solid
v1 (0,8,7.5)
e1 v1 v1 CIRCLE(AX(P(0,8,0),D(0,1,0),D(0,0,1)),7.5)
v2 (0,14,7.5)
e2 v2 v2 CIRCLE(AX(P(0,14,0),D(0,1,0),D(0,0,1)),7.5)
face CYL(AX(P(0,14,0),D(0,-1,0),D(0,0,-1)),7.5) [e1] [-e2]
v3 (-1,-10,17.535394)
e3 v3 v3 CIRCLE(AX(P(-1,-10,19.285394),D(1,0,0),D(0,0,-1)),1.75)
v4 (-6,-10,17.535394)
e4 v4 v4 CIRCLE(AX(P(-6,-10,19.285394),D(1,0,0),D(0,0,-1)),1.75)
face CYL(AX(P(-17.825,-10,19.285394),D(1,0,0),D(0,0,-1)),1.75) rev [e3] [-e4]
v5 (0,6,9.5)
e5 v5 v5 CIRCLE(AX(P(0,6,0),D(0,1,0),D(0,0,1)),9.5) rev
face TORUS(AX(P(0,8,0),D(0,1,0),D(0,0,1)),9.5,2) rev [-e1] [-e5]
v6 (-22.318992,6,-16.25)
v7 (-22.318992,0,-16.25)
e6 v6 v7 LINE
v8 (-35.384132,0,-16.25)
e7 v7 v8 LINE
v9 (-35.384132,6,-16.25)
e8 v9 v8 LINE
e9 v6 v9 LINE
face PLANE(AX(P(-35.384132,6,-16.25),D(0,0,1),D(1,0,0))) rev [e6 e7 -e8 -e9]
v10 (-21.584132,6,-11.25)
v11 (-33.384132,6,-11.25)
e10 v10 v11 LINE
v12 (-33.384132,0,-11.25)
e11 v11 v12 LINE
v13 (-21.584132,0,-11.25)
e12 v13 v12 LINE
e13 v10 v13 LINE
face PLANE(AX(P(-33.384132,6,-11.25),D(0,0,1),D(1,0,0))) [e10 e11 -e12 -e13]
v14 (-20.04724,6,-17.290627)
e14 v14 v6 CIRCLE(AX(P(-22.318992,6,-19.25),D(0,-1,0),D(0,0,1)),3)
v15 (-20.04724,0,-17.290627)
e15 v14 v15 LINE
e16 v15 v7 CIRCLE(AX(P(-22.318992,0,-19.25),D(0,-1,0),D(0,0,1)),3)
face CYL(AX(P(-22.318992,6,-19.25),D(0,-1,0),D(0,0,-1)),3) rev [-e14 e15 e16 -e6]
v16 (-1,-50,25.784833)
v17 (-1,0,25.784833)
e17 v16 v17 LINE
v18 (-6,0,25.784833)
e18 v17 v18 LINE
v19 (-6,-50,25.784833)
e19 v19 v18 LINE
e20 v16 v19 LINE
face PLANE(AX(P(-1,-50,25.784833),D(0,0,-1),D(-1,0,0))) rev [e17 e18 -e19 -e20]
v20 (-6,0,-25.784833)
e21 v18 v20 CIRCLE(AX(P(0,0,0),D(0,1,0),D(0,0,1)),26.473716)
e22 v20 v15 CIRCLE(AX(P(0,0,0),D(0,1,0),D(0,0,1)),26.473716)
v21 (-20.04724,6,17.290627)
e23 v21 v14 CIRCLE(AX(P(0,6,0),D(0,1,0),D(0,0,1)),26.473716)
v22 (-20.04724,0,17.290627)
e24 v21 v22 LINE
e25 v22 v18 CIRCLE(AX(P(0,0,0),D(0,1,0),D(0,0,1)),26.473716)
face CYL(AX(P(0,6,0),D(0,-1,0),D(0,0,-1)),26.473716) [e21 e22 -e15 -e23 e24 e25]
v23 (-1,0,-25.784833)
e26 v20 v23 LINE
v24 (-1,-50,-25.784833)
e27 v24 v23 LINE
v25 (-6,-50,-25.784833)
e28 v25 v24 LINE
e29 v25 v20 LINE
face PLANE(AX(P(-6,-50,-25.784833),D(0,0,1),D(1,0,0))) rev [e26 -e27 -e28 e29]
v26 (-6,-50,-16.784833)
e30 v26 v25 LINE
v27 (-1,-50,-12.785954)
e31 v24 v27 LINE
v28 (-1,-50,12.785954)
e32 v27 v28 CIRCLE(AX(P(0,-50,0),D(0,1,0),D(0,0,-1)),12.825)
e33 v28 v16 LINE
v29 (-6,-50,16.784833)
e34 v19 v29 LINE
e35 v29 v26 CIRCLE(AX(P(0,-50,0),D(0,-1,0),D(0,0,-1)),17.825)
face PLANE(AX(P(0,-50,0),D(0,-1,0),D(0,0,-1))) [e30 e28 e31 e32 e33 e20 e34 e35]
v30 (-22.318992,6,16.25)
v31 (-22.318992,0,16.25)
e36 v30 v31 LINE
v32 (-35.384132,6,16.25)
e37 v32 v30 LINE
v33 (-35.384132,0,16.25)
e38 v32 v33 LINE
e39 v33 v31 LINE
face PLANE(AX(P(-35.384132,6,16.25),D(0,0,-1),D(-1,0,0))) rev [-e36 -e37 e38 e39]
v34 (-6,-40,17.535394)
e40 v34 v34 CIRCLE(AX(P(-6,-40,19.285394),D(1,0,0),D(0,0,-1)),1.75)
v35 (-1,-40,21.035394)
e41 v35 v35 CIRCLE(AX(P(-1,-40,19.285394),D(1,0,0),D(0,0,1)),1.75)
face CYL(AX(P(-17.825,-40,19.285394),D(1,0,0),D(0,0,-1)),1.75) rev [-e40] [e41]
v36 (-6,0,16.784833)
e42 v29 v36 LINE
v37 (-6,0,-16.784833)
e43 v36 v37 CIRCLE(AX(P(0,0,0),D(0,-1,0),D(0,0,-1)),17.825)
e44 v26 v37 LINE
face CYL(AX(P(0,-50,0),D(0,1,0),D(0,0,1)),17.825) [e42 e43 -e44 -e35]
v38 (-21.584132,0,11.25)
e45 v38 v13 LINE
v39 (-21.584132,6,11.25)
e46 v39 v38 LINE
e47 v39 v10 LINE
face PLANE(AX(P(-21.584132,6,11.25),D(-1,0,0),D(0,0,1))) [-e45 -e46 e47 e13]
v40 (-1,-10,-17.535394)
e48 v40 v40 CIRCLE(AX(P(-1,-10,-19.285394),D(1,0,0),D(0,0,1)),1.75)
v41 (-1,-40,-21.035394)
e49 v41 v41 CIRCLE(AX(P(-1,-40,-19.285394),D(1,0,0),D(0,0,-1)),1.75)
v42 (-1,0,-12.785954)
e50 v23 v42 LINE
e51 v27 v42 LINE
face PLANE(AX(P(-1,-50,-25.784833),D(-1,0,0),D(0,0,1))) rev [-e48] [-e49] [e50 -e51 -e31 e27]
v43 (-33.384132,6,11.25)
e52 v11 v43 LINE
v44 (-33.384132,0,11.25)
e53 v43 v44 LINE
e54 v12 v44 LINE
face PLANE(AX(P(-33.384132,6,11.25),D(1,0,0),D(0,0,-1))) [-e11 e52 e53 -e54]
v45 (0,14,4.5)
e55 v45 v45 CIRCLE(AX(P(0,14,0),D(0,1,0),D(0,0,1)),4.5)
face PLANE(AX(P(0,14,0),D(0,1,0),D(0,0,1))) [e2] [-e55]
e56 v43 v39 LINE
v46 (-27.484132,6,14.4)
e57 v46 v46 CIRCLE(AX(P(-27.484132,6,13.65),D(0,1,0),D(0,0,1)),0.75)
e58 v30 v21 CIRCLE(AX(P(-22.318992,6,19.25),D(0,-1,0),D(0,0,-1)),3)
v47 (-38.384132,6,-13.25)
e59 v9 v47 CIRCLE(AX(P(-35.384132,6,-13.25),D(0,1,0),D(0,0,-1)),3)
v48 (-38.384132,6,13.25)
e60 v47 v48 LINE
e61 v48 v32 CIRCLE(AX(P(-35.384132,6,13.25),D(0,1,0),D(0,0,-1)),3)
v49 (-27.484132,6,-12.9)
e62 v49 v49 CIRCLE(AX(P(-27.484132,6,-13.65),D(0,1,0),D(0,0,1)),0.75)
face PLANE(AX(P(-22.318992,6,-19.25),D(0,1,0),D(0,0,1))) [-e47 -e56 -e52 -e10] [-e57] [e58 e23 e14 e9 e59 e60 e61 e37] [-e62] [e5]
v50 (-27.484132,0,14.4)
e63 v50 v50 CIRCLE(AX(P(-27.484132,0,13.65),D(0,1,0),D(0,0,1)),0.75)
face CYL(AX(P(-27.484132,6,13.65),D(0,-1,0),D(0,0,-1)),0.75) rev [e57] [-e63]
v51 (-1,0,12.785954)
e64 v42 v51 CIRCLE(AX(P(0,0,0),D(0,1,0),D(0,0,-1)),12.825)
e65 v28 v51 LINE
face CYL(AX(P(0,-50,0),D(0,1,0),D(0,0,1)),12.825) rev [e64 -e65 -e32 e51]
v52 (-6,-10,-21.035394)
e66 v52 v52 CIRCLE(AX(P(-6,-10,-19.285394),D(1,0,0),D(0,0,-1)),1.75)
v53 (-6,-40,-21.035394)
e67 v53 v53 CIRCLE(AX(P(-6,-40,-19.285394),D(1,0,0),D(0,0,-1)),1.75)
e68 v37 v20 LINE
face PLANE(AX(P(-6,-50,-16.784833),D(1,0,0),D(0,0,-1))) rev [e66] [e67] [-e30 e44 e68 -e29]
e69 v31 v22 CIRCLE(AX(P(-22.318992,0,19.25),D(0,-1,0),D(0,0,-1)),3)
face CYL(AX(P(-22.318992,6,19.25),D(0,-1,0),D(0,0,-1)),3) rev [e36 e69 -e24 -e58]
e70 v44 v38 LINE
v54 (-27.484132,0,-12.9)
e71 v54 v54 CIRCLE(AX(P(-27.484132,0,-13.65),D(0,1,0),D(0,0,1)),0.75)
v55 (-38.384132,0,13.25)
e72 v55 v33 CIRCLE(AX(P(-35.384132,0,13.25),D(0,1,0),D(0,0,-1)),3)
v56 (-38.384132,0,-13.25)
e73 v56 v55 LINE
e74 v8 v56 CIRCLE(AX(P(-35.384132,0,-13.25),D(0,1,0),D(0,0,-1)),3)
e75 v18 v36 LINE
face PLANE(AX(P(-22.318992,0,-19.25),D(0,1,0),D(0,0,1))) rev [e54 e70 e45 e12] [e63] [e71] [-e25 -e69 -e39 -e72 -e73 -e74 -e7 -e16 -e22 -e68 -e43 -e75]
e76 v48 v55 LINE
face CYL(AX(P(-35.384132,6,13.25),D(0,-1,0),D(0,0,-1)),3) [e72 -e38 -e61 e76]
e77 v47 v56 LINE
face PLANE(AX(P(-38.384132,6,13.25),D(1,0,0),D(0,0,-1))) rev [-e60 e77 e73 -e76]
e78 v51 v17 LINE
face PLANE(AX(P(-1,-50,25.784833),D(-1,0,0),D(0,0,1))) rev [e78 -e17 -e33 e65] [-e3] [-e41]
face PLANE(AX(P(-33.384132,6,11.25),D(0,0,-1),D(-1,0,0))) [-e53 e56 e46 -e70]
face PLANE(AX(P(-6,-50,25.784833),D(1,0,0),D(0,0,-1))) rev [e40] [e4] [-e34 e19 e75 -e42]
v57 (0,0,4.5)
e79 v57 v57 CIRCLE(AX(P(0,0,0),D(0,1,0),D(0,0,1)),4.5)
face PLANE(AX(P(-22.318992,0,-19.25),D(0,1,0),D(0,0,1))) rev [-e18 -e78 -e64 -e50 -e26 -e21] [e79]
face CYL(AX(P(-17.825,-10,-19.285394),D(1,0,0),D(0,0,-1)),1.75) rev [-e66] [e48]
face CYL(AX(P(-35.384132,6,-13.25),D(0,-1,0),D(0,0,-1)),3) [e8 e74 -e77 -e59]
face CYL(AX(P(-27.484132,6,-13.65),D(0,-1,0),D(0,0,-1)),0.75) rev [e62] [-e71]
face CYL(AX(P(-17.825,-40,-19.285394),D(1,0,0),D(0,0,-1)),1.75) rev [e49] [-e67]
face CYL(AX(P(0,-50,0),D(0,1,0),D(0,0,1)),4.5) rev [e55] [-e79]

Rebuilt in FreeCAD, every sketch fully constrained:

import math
import FreeCAD as App
import Part
import Sketcher
from FreeCAD import Vector
Q = App.Units.Quantity


def edges_at(feature, points):
    """Names of the edges that pass closest to the given points."""
    edges = feature.Shape.Edges
    near = lambda p: min(range(len(edges)), key=lambda i: edges[i].distToShape(Part.Vertex(*p))[0])
    return sorted({f"Edge{near(p) + 1}" for p in points})


def add_polygon(sketch, points):
    """Adds a closed chain of lines whose ends are joined by coincident constraints."""
    first, n = sketch.GeometryCount, len(points)
    for a, b in zip(points, points[1:] + points[:1]):
        sketch.addGeometry(Part.LineSegment(App.Vector(*a, 0), App.Vector(*b, 0)), False)
    for i in range(n):
        sketch.addConstraint(Sketcher.Constraint("Coincident", first + i, 2, first + (i + 1) % n, 1))

doc = App.newDocument("Part")
body = doc.addObject("PartDesign::Body", "Body")

# Sketch on XZ plane
sketch1 = doc.addObject("Sketcher::SketchObject", "Sketch")
body.addObject(sketch1)
sketch1.AttachmentSupport = (doc.XZ_Plane, [""])
sketch1.MapMode = "FlatFace"
sketch1.addGeometry([
    Part.LineSegment(Vector(-1, 13, 0), Vector(-1, 26, 0)),  # 0
    Part.LineSegment(Vector(-1, 26, 0), Vector(-6, 26, 0)),  # 1
    Part.LineSegment(Vector(-6, 26, 0), Vector(-6, 17, 0)),  # 2
    Part.ArcOfCircle(Part.Circle(Vector(0, 0, 0), Vector(0, 0, 1), 18), math.radians(110), math.radians(250)),  # 3
    Part.LineSegment(Vector(-6, -17, 0), Vector(-6, -26, 0)),  # 4
    Part.LineSegment(Vector(-6, -26, 0), Vector(-1, -26, 0)),  # 5
    Part.LineSegment(Vector(-1, -26, 0), Vector(-1, -13, 0)),  # 6
    Part.ArcOfCircle(Part.Circle(Vector(0, 0, 0), Vector(0, 0, 1), 13), math.radians(94), math.radians(266)),  # 7
], False)
sketch1.addConstraint([
    Sketcher.Constraint("Coincident", 0, 2, 1, 1),
    Sketcher.Constraint("Coincident", 1, 2, 2, 1),
    Sketcher.Constraint("Coincident", 2, 2, 3, 1),
    Sketcher.Constraint("Coincident", 3, 2, 4, 1),
    Sketcher.Constraint("Coincident", 4, 2, 5, 1),
    Sketcher.Constraint("Coincident", 5, 2, 6, 1),
    Sketcher.Constraint("Coincident", 6, 2, 7, 2),
    Sketcher.Constraint("Coincident", 7, 1, 0, 1),
    Sketcher.Constraint("Vertical", 0),
    Sketcher.Constraint("Horizontal", 1),
    Sketcher.Constraint("Vertical", 2),
    Sketcher.Constraint("Vertical", 4),
    Sketcher.Constraint("Horizontal", 5),
    Sketcher.Constraint("Vertical", 6),
    Sketcher.Constraint("Coincident", 3, 3, -1, 1),
    Sketcher.Constraint("Coincident", 7, 3, -1, 1),
    Sketcher.Constraint("Symmetric", 1, 2, 4, 2, -1),
    Sketcher.Constraint("Vertical", 0, 2, 5, 2),
    Sketcher.Constraint("DistanceX", 1, 2, 1, 1, Q("5 mm")),
    Sketcher.Constraint("DistanceY", 2, 2, 2, 1, Q("9 mm")),
    Sketcher.Constraint("DistanceX", 0, 2, -1, 1, Q("1 mm")),
    Sketcher.Constraint("Radius", 3, Q("17.825 mm")),
    Sketcher.Constraint("Radius", 7, Q("12.825 mm")),
])
pad1 = doc.addObject("PartDesign::Pad", "Pad")
body.addObject(pad1)
pad1.Profile = sketch1
pad1.Length = 50

# Sketch on YZ plane
sketch2 = doc.addObject("Sketcher::SketchObject", "Sketch001")
body.addObject(sketch2)
sketch2.AttachmentSupport = (doc.YZ_Plane, [""])
sketch2.MapMode = "FlatFace"
sketch2.AttachmentOffset = App.Placement(Vector(0, 0, -1), App.Rotation())
sketch2.addGeometry([
    Part.Circle(Vector(-10, 19.3, 0), Vector(0, 0, 1), 1.8),
    Part.Circle(Vector(-40, 19.3, 0), Vector(0, 0, 1), 1.8),
    Part.Circle(Vector(-40, -19.3, 0), Vector(0, 0, 1), 1.8),
    Part.Circle(Vector(-10, -19.3, 0), Vector(0, 0, 1), 1.8),
], False)
sketch2.addConstraint([
    Sketcher.Constraint("Equal", 0, 1),
    Sketcher.Constraint("Equal", 1, 2),
    Sketcher.Constraint("Equal", 2, 3),
    Sketcher.Constraint("Symmetric", 1, 3, 2, 3, -1),
    Sketcher.Constraint("Symmetric", 0, 3, 3, 3, -1),
    Sketcher.Constraint("Horizontal", 0, 3, 1, 3),
    Sketcher.Constraint("Diameter", 0, Q("3.5 mm")),
    Sketcher.Constraint("DistanceX", 0, 3, -1, 1, Q("10 mm")),
    Sketcher.Constraint("DistanceX", 1, 3, -1, 1, Q("40 mm")),
    Sketcher.Constraint("DistanceY", -1, 1, 0, 3, Q("19.285394 mm")),
])
pocket1 = doc.addObject("PartDesign::Pocket", "Pocket")
body.addObject(pocket1)
pocket1.Profile = sketch2
pocket1.Type = "ThroughAll"

# Sketch on XZ plane
sketch3 = doc.addObject("Sketcher::SketchObject", "Sketch002")
body.addObject(sketch3)
sketch3.AttachmentSupport = (doc.XZ_Plane, [""])
sketch3.MapMode = "FlatFace"
sketch3.addGeometry(Part.LineSegment(Vector(-35.4, 16.2, 0), Vector(-22.3, 16.2, 0)), False)  # 0
sketch3.addGeometry(Part.ArcOfCircle(Part.Circle(Vector(-22.3, 19.3, 0), Vector(0, 0, 1), 3), math.radians(-90), math.radians(-41)), False)  # 1
sketch3.addGeometry(Part.ArcOfCircle(Part.Circle(Vector(0, 0, 0), Vector(0, 0, 1), 26.5), math.radians(-139), math.radians(139)), False)  # 2
sketch3.addGeometry(Part.ArcOfCircle(Part.Circle(Vector(-22.3, -19.3, 0), Vector(0, 0, 1), 3), math.radians(41), math.radians(90)), False)  # 3
sketch3.addGeometry(Part.LineSegment(Vector(-22.3, -16.2, 0), Vector(-35.4, -16.2, 0)), False)  # 4
sketch3.addGeometry(Part.ArcOfCircle(Part.Circle(Vector(-35.4, -13.3, 0), Vector(0, 0, 1), 3), math.radians(180), math.radians(270)), False)  # 5
sketch3.addGeometry(Part.LineSegment(Vector(-38.4, -13.2, 0), Vector(-38.4, 13.2, 0)), False)  # 6
sketch3.addGeometry(Part.ArcOfCircle(Part.Circle(Vector(-35.4, 13.3, 0), Vector(0, 0, 1), 3), math.radians(90), math.radians(180)), False)  # 7
sketch3.addGeometry(Part.Circle(Vector(-27.5, 13.7, 0), Vector(0, 0, 1), 0.8), False)  # 8
add_polygon(sketch3, [(-21.6, 11.2), (-33.4, 11.2), (-33.4, -11.2), (-21.6, -11.2)])  # lines 9-12
sketch3.addGeometry(Part.Circle(Vector(-27.5, -13.7, 0), Vector(0, 0, 1), 0.8), False)  # 13
sketch3.addConstraint([
    Sketcher.Constraint("Tangent", 0, 2, 1, 1),
    Sketcher.Constraint("Tangent", 1, 2, 2, 2),
    Sketcher.Constraint("Tangent", 2, 1, 3, 1),
    Sketcher.Constraint("Tangent", 3, 2, 4, 1),
    Sketcher.Constraint("Tangent", 4, 2, 5, 2),
    Sketcher.Constraint("Tangent", 5, 1, 6, 1),
    Sketcher.Constraint("Tangent", 6, 2, 7, 2),
    Sketcher.Constraint("Tangent", 7, 1, 0, 1),
    Sketcher.Constraint("Horizontal", 0),
    Sketcher.Constraint("Horizontal", 4),
    Sketcher.Constraint("Vertical", 6),
    Sketcher.Constraint("Horizontal", 9),
    Sketcher.Constraint("Vertical", 10),
    Sketcher.Constraint("Horizontal", 11),
    Sketcher.Constraint("Vertical", 12),
    Sketcher.Constraint("Coincident", 2, 3, -1, 1),
    Sketcher.Constraint("Equal", 1, 3),
    Sketcher.Constraint("Equal", 3, 5),
    Sketcher.Constraint("Equal", 5, 7),
    Sketcher.Constraint("Equal", 8, 13),
    Sketcher.Constraint("Symmetric", 8, 3, 13, 3, -1),
    Sketcher.Constraint("Vertical", 1, 3, 3, 3),
    Sketcher.Constraint("Radius", 1, Q("3 mm")),
    Sketcher.Constraint("Diameter", 8, Q("1.5 mm")),
    Sketcher.Constraint("DistanceX", 9, 2, 9, 1, Q("11.8 mm")),
    Sketcher.Constraint("DistanceY", 6, 1, 6, 2, Q("26.5 mm")),
    Sketcher.Constraint("DistanceY", 10, 2, 10, 1, Q("22.5 mm")),
    Sketcher.Constraint("DistanceX", 7, 3, 9, 2, Q("2 mm")),
    Sketcher.Constraint("DistanceY", 9, 2, 7, 3, Q("2 mm")),
    Sketcher.Constraint("DistanceY", 8, 3, 1, 3, Q("5.6 mm")),
    Sketcher.Constraint("DistanceX", 7, 3, 8, 3, Q("7.9 mm")),
    Sketcher.Constraint("Radius", 2, Q("26.473716 mm")),
    Sketcher.Constraint("DistanceX", 0, 1, 0, 2, Q("13.06514 mm")),
])
pad2 = doc.addObject("PartDesign::Pad", "Pad001")
body.addObject(pad2)
pad2.Profile = sketch3
pad2.Length = 6
pad2.Reversed = True

# Sketch on XZ plane
sketch4 = doc.addObject("Sketcher::SketchObject", "Sketch003")
body.addObject(sketch4)
sketch4.AttachmentSupport = (doc.XZ_Plane, [""])
sketch4.MapMode = "FlatFace"
sketch4.AttachmentOffset = App.Placement(Vector(0, 0, -6), App.Rotation())
sketch4.addGeometry(Part.Circle(Vector(0, 0, 0), Vector(0, 0, 1), 8), False)
sketch4.addConstraint([
    Sketcher.Constraint("Coincident", 0, 3, -1, 1),
    Sketcher.Constraint("Diameter", 0, Q("15 mm")),
])
pad3 = doc.addObject("PartDesign::Pad", "Pad002")
body.addObject(pad3)
pad3.Profile = sketch4
pad3.Length = 8
pad3.Reversed = True
doc.recompute()

fillet = doc.addObject("PartDesign::Fillet", "Fillet")
body.addObject(fillet)
fillet.Base = (pad3, edges_at(pad3, [(-7.5, 6, 0)]))
fillet.Radius = 2

# Sketch on XZ plane
sketch5 = doc.addObject("Sketcher::SketchObject", "Sketch004")
body.addObject(sketch5)
sketch5.AttachmentSupport = (doc.XZ_Plane, [""])
sketch5.MapMode = "FlatFace"
sketch5.AttachmentOffset = App.Placement(Vector(0, 0, -14), App.Rotation())
sketch5.addGeometry(Part.Circle(Vector(0, 0, 0), Vector(0, 0, 1), 4.5), False)
sketch5.addConstraint([
    Sketcher.Constraint("Coincident", 0, 3, -1, 1),
    Sketcher.Constraint("Diameter", 0, Q("9 mm")),
])
pocket2 = doc.addObject("PartDesign::Pocket", "Pocket001")
body.addObject(pocket2)
pocket2.Profile = sketch5
pocket2.Type = "ThroughAll"
pocket2.Reversed = True

doc.recompute()
